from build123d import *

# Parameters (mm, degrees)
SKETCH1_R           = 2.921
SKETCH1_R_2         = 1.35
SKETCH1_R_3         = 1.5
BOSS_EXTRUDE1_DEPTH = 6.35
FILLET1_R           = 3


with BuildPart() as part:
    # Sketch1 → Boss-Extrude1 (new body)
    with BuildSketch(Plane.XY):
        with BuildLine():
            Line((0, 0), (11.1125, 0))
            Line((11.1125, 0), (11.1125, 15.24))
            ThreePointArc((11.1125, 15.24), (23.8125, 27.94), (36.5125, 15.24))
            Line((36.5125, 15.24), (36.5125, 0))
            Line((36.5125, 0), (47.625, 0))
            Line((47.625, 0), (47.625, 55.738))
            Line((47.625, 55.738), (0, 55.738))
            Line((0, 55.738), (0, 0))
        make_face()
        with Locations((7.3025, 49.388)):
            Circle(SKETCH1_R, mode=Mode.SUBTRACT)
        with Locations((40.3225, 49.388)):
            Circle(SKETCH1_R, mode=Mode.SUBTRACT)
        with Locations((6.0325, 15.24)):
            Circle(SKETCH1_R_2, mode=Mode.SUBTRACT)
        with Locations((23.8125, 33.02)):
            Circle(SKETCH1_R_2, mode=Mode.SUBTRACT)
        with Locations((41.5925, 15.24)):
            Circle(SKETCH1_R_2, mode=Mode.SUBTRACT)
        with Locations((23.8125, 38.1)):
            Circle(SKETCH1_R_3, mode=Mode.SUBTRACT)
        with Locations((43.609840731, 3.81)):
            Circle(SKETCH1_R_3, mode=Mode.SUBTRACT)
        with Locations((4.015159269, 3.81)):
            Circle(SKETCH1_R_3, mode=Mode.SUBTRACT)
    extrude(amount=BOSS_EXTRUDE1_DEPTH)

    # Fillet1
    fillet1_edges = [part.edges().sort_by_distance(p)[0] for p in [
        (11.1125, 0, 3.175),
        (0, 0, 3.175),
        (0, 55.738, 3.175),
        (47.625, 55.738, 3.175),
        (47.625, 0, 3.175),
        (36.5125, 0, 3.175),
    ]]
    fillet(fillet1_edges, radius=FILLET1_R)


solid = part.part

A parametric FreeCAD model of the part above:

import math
import FreeCAD as App
import Part
import Sketcher
Q = App.Units.Quantity


def edges_at(feature, points):
    """Names of the edges that pass closest to the given points."""
    edges = feature.Shape.Edges
    near = lambda p: min(range(len(edges)), key=lambda i: edges[i].distToShape(Part.Vertex(*p))[0])
    return sorted({f"Edge{near(p) + 1}" for p in points})

doc = App.newDocument("Part")
body = doc.addObject("PartDesign::Body", "Body")

# Sketch on XY plane
sketch1 = body.newObject("Sketcher::SketchObject", "Sketch")
sketch1.AttachmentSupport = (doc.getObject("XY_Plane"), [""])
sketch1.MapMode = "FlatFace"
sketch1.addGeometry([
    Part.LineSegment(App.Vector(0, 0, 0), App.Vector(11.1, 0, 0)),  # 0
    Part.LineSegment(App.Vector(11.1, 0, 0), App.Vector(11.1, 15.2, 0)),  # 1
    Part.ArcOfCircle(Part.Circle(App.Vector(23.8, 15.2, 0), App.Vector(0, 0, 1), 12.7), math.radians(0), math.radians(180)),  # 2
    Part.LineSegment(App.Vector(36.5, 15.2, 0), App.Vector(36.5, 0, 0)),  # 3
    Part.LineSegment(App.Vector(36.5, 0, 0), App.Vector(47.6, 0, 0)),  # 4
    Part.LineSegment(App.Vector(47.6, 0, 0), App.Vector(47.6, 55.7, 0)),  # 5
    Part.LineSegment(App.Vector(47.6, 55.7, 0), App.Vector(0, 55.7, 0)),  # 6
    Part.LineSegment(App.Vector(0, 55.7, 0), App.Vector(0, 0, 0)),  # 7
    Part.Circle(App.Vector(4, 3.8, 0), App.Vector(0, 0, 1), 1.5),  # 8
    Part.Circle(App.Vector(6, 15.2, 0), App.Vector(0, 0, 1), 1.4),  # 9
    Part.Circle(App.Vector(43.6, 3.8, 0), App.Vector(0, 0, 1), 1.5),  # 10
    Part.Circle(App.Vector(41.6, 15.2, 0), App.Vector(0, 0, 1), 1.4),  # 11
    Part.Circle(App.Vector(7.3, 49.4, 0), App.Vector(0, 0, 1), 2.9),  # 12
    Part.Circle(App.Vector(23.8, 33, 0), App.Vector(0, 0, 1), 1.4),  # 13
    Part.Circle(App.Vector(23.8, 38.1, 0), App.Vector(0, 0, 1), 1.5),  # 14
    Part.Circle(App.Vector(40.3, 49.4, 0), App.Vector(0, 0, 1), 2.9),  # 15
], False)
sketch1.addConstraint([
    Sketcher.Constraint("Coincident", 0, 2, 1, 1),
    Sketcher.Constraint("Tangent", 1, 2, 2, 2),
    Sketcher.Constraint("Tangent", 2, 1, 3, 1),
    Sketcher.Constraint("Coincident", 3, 2, 4, 1),
    Sketcher.Constraint("Coincident", 4, 2, 5, 1),
    Sketcher.Constraint("Coincident", 5, 2, 6, 1),
    Sketcher.Constraint("Coincident", 6, 2, 7, 1),
    Sketcher.Constraint("Coincident", 7, 2, 0, 1),
    Sketcher.Constraint("Horizontal", 0),
    Sketcher.Constraint("Vertical", 1),
    Sketcher.Constraint("Vertical", 3),
    Sketcher.Constraint("Horizontal", 4),
    Sketcher.Constraint("Vertical", 5),
    Sketcher.Constraint("Horizontal", 6),
    Sketcher.Constraint("Vertical", 7),
    Sketcher.Constraint("Coincident", 7, 2, -1, 1),
    Sketcher.Constraint("Equal", 8, 10),
    Sketcher.Constraint("Equal", 9, 11),
    Sketcher.Constraint("Equal", 11, 13),
    Sketcher.Constraint("Equal", 10, 14),
    Sketcher.Constraint("Equal", 12, 15),
    Sketcher.Constraint("PointOnObject", 3, 2, -1),
    Sketcher.Constraint("Horizontal", 2, 3, 9, 3),
    Sketcher.Constraint("Horizontal", 8, 3, 10, 3),
    Sketcher.Constraint("Horizontal", 9, 3, 11, 3),
    Sketcher.Constraint("Horizontal", 12, 3, 15, 3),
    Sketcher.Constraint("Vertical", 2, 3, 13, 3),
    Sketcher.Constraint("Vertical", 13, 3, 14, 3),
    Sketcher.Constraint("Equal", 0, 4),
    Sketcher.Constraint("Radius", 2, Q("0.5 in")),
    Sketcher.Constraint("Diameter", 12, Q("0.23 in")),
    Sketcher.Constraint("DistanceY", 1, 1, 1, 2, Q("0.6 in")),
    Sketcher.Constraint("DistanceY", -1, 1, 13, 3, Q("1.3 in")),
    Sketcher.Constraint("DistanceY", -1, 1, 14, 3, Q("1.5 in")),
    Sketcher.Constraint("DistanceX", 9, 3, 2, 3, Q("0.7 in")),
    Sketcher.Constraint("DistanceX", 2, 3, 11, 3, Q("0.7 in")),
    Sketcher.Constraint("DistanceX", 12, 3, 15, 3, Q("1.3 in")),
    Sketcher.Constraint("Diameter", 8, Q("3 mm")),
    Sketcher.Constraint("Diameter", 9, Q("2.7 mm")),
    Sketcher.Constraint("DistanceX", 0, 1, 0, 2, Q("0.4375 in")),
    Sketcher.Constraint("DistanceY", -1, 1, 8, 3, Q("0.15 in")),
    Sketcher.Constraint("DistanceX", 9, 3, 12, 3, Q("0.05 in")),
    Sketcher.Constraint("DistanceY", 15, 3, 5, 2, Q("0.25 in")),
    Sketcher.Constraint("DistanceY", 5, 1, 5, 2, Q("55.738 mm")),
    Sketcher.Constraint("DistanceX", -1, 1, 8, 3, Q("4.015159 mm")),
    Sketcher.Constraint("DistanceX", -1, 1, 10, 3, Q("43.609841 mm")),
])
pad1 = body.newObject("PartDesign::Pad", "Pad")
pad1.Profile = sketch1
pad1.Length = Q("0.25 in")
doc.recompute()

fillet = body.newObject("PartDesign::Fillet", "Fillet")
fillet.Base = (pad1, edges_at(pad1, [
    (11.113, 0, 3.175),
    (0, 0, 3.175),
    (0, 55.738, 3.175),
    (47.625, 55.738, 3.175),
    (47.625, 0, 3.175),
    (36.513, 0, 3.175),
]))
fillet.Radius = 3

doc.recompute()
